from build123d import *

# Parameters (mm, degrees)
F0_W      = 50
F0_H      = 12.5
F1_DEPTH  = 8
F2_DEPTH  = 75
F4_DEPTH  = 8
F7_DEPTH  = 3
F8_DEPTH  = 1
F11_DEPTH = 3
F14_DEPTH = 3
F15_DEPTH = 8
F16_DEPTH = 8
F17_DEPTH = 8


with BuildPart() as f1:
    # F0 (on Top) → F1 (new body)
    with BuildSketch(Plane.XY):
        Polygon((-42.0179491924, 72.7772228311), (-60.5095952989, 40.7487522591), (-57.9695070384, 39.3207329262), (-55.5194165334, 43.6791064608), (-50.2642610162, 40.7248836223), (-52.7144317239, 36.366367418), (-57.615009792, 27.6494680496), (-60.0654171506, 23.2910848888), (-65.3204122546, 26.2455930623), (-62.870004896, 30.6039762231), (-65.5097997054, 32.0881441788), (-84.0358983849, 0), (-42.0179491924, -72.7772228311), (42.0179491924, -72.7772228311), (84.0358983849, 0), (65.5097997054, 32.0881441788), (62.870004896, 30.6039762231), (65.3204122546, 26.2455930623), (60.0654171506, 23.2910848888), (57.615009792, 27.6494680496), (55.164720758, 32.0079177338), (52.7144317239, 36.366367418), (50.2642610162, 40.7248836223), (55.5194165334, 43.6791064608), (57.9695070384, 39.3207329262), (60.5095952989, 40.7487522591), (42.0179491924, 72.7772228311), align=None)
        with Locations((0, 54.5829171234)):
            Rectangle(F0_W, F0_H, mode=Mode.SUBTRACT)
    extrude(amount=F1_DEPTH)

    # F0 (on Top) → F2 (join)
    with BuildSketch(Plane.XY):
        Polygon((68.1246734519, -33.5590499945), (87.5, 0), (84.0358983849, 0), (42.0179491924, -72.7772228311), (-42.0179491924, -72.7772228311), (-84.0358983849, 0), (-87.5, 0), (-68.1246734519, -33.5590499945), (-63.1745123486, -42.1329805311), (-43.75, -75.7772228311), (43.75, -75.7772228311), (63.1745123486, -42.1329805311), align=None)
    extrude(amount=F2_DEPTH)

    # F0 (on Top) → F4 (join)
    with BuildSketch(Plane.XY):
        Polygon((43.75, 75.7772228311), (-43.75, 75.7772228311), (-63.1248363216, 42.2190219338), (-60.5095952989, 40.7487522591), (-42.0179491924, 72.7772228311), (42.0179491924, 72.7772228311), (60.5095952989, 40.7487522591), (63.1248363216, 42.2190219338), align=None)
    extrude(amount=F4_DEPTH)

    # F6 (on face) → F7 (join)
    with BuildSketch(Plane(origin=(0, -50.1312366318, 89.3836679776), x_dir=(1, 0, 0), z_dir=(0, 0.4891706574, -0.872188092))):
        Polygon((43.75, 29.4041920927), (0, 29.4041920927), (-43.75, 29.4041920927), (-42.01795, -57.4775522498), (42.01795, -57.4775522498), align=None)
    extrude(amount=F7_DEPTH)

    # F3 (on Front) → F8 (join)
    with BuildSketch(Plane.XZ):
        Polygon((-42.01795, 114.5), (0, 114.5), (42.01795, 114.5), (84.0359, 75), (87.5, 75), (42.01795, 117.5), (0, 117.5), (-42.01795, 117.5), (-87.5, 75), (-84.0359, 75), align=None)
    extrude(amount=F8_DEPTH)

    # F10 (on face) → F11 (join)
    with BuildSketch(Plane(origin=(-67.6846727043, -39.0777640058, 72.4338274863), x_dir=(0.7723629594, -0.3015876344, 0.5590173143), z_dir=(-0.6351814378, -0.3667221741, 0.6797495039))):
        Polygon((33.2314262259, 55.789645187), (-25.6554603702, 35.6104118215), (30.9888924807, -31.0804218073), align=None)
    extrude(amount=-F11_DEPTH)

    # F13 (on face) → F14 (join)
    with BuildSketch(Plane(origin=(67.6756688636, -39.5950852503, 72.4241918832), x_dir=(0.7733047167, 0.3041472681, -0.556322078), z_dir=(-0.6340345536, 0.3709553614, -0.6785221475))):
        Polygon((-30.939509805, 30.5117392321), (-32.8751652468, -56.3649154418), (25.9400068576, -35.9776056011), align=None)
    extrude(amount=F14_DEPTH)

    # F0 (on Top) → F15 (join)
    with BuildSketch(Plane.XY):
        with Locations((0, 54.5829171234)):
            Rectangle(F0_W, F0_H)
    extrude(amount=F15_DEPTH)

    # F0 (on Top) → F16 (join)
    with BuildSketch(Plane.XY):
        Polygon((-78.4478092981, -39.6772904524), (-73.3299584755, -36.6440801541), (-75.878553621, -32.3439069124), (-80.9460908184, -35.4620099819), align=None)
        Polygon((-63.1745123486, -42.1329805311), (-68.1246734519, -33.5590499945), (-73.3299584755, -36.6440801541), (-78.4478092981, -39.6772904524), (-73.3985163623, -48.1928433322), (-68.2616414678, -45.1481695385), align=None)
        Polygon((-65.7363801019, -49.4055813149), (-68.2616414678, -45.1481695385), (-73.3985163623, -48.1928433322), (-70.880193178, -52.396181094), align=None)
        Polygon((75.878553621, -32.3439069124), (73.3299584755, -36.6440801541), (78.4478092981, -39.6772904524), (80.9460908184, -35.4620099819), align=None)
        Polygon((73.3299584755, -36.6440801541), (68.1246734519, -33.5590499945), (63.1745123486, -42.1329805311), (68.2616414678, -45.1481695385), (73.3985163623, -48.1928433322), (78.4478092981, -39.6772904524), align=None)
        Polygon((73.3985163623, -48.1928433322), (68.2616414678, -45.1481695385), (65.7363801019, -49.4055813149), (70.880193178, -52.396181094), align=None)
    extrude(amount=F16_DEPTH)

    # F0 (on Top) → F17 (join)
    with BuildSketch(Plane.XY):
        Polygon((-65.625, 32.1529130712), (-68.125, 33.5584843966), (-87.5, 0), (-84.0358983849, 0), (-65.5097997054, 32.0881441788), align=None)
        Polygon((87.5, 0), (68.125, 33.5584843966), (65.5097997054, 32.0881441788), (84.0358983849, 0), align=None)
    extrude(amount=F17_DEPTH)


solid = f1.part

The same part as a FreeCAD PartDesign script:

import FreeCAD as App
import Part
import Sketcher
Q = App.Units.Quantity


def add_polygon(sketch, points):
    """Adds a closed chain of lines whose ends are joined by coincident constraints."""
    first, n = sketch.GeometryCount, len(points)
    for a, b in zip(points, points[1:] + points[:1]):
        sketch.addGeometry(Part.LineSegment(App.Vector(*a, 0), App.Vector(*b, 0)), False)
    for i in range(n):
        sketch.addConstraint(Sketcher.Constraint("Coincident", first + i, 2, first + (i + 1) % n, 1))

doc = App.newDocument("Part")
body = doc.addObject("PartDesign::Body", "Body")

sketch1 = body.newObject("Sketcher::SketchObject", "Sketch")
sketch1.AttachmentSupport = (doc.getObject("XY_Plane"), [""])
sketch1.MapMode = "FlatFace"
add_polygon(sketch1, [(-42.017949, 72.777223), (-60.509595, 40.748752), (-57.969507, 39.320733), (-55.519417, 43.679106), (-50.264261, 40.724884), (-52.714432, 36.366367), (-57.61501, 27.649468), (-60.065417, 23.291085), (-65.320412, 26.245593), (-62.870005, 30.603976), (-65.5098, 32.088144), (-84.035898, 0), (-42.017949, -72.777223), (42.017949, -72.777223), (84.035898, 0), (65.5098, 32.088144), (62.870005, 30.603976), (65.320412, 26.245593), (60.065417, 23.291085), (57.61501, 27.649468), (55.164721, 32.007918), (52.714432, 36.366367), (50.264261, 40.724884), (55.519417, 43.679106), (57.969507, 39.320733), (60.509595, 40.748752), (42.017949, 72.777223)])
add_polygon(sketch1, [(25, 48.332917), (-25, 48.332917), (-25, 60.832917), (25, 60.832917)])
sketch1.addConstraint(Sketcher.Constraint("Horizontal", 12))
sketch1.addConstraint(Sketcher.Constraint("Horizontal", 26))
sketch1.addConstraint(Sketcher.Constraint("Horizontal", 27))
sketch1.addConstraint(Sketcher.Constraint("Vertical", 28))
sketch1.addConstraint(Sketcher.Constraint("Horizontal", 29))
sketch1.addConstraint(Sketcher.Constraint("Vertical", 30))
sketch1.addConstraint(Sketcher.Constraint("PointOnObject", 10, 2, -1))
sketch1.addConstraint(Sketcher.Constraint("PointOnObject", 13, 2, -1))
sketch1.addConstraint(Sketcher.Constraint("DistanceX", 27, 2, 27, 1, Q("50 mm")))
sketch1.addConstraint(Sketcher.Constraint("Distance", 4, Q("5 mm")))
sketch1.addConstraint(Sketcher.Constraint("Distance", 5, Q("10 mm")))
sketch1.addConstraint(Sketcher.Constraint("Distance", 6, Q("5 mm")))
sketch1.addConstraint(Sketcher.Constraint("Distance", 8, Q("5 mm")))
sketch1.addConstraint(Sketcher.Constraint("Distance", 16, Q("5 mm")))
sketch1.addConstraint(Sketcher.Constraint("Distance", 18, Q("5 mm")))
sketch1.addConstraint(Sketcher.Constraint("Distance", 19, Q("5 mm")))
sketch1.addConstraint(Sketcher.Constraint("Distance", 20, Q("5 mm")))
sketch1.addConstraint(Sketcher.Constraint("Distance", 21, Q("5 mm")))
sketch1.addConstraint(Sketcher.Constraint("DistanceY", 28, 1, 28, 2, Q("12.5 mm")))
sketch1.addConstraint(Sketcher.Constraint("DistanceX", 27, 2, -1, 1, Q("25 mm")))
sketch1.addConstraint(Sketcher.Constraint("DistanceX", 12, 1, 12, 2, Q("84.035898 mm")))
sketch1.addConstraint(Sketcher.Constraint("DistanceX", 26, 2, 26, 1, Q("84.035898 mm")))
sketch1.addConstraint(Sketcher.Constraint("Distance", 11, Q("84.035898 mm")))
sketch1.addConstraint(Sketcher.Constraint("Distance", 13, Q("84.035898 mm")))
sketch1.addConstraint(Sketcher.Constraint("DistanceX", 9, 2, -1, 1, Q("65.5098 mm")))
sketch1.addConstraint(Sketcher.Constraint("DistanceX", 10, 2, -1, 1, Q("84.035898 mm")))
sketch1.addConstraint(Sketcher.Constraint("DistanceX", -1, 1, 13, 2, Q("84.035898 mm")))
sketch1.addConstraint(Sketcher.Constraint("DistanceX", -1, 1, 14, 2, Q("65.5098 mm")))
sketch1.addConstraint(Sketcher.Constraint("DistanceY", 5, 2, 4, 2, Q("8.716899 mm")))
sketch1.addConstraint(Sketcher.Constraint("DistanceY", 6, 2, 3, 2, Q("17.433799 mm")))
sketch1.addConstraint(Sketcher.Constraint("DistanceY", 11, 2, 8, 2, Q("103.381199 mm")))
sketch1.addConstraint(Sketcher.Constraint("DistanceY", 12, 2, 15, 2, Q("103.381199 mm")))
sketch1.addConstraint(Sketcher.Constraint("DistanceY", 18, 2, 20, 2, Q("8.716899 mm")))
sketch1.addConstraint(Sketcher.Constraint("Distance", 1, Q("2.913981 mm")))
sketch1.addConstraint(Sketcher.Constraint("Distance", 9, Q("3.028411 mm")))
sketch1.addConstraint(Sketcher.Constraint("Distance", 15, Q("3.028411 mm")))
sketch1.addConstraint(Sketcher.Constraint("Distance", 24, Q("2.913981 mm")))
sketch1.addConstraint(Sketcher.Constraint("DistanceX", 3, 2, -1, 1, Q("50.264261 mm")))
sketch1.addConstraint(Sketcher.Constraint("DistanceX", 4, 2, -1, 1, Q("52.714432 mm")))
sketch1.addConstraint(Sketcher.Constraint("DistanceY", -1, 1, 5, 2, Q("27.649468 mm")))
sketch1.addConstraint(Sketcher.Constraint("DistanceX", -1, 1, 18, 2, Q("57.61501 mm")))
sketch1.addConstraint(Sketcher.Constraint("DistanceY", -1, 1, 18, 2, Q("27.649468 mm")))
sketch1.addConstraint(Sketcher.Constraint("DistanceX", -1, 1, 19, 2, Q("55.164721 mm")))
sketch1.addConstraint(Sketcher.Constraint("DistanceX", -1, 1, 21, 2, Q("50.264261 mm")))
sketch1.addConstraint(Sketcher.Constraint("DistanceX", -1, 1, 25, 2, Q("42.017949 mm")))
sketch1.addConstraint(Sketcher.Constraint("DistanceX", 0, 2, 1, 2, Q("2.540088 mm")))
sketch1.addConstraint(Sketcher.Constraint("DistanceX", 1, 2, 2, 2, Q("2.450091 mm")))
sketch1.addConstraint(Sketcher.Constraint("DistanceY", 1, 2, 3, 2, Q("1.404151 mm")))
sketch1.addConstraint(Sketcher.Constraint("DistanceY", 4, 2, 2, 2, Q("7.312739 mm")))
sketch1.addConstraint(Sketcher.Constraint("DistanceX", 6, 2, 1, 2, Q("2.09591 mm")))
sketch1.addConstraint(Sketcher.Constraint("DistanceY", 6, 2, 7, 2, Q("2.954508 mm")))
sketch1.addConstraint(Sketcher.Constraint("DistanceX", 7, 2, 4, 2, Q("12.605981 mm")))
sketch1.addConstraint(Sketcher.Constraint("DistanceY", 14, 2, 3, 2, Q("8.636739 mm")))
sketch1.addConstraint(Sketcher.Constraint("DistanceY", 16, 2, 14, 2, Q("5.842551 mm")))
sketch1.addConstraint(Sketcher.Constraint("DistanceY", 17, 2, 16, 2, Q("2.954508 mm")))
sketch1.addConstraint(Sketcher.Constraint("DistanceY", 20, 2, 22, 2, Q("7.312739 mm")))
sketch1.addConstraint(Sketcher.Constraint("DistanceX", 22, 2, 15, 2, Q("7.350588 mm")))
sketch1.addConstraint(Sketcher.Constraint("DistanceX", 22, 2, 23, 2, Q("2.450091 mm")))
sketch1.addConstraint(Sketcher.Constraint("DistanceY", 23, 2, 21, 2, Q("1.404151 mm")))
sketch1.addConstraint(Sketcher.Constraint("DistanceX", 23, 2, 24, 2, Q("2.540088 mm")))
sketch1.addConstraint(Sketcher.Constraint("DistanceY", 21, 2, 25, 2, Q("32.052339 mm")))
sketch1.addConstraint(Sketcher.Constraint("DistanceY", 4, 2, 27, 2, Q("11.96655 mm")))
pad1 = body.newObject("PartDesign::Pad", "Pad")
pad1.Profile = sketch1
pad1.Length = 8

sketch2 = body.newObject("Sketcher::SketchObject", "Sketch001")
sketch2.AttachmentSupport = (doc.getObject("XY_Plane"), [""])
sketch2.MapMode = "FlatFace"
add_polygon(sketch2, [(68.124673, -33.55905), (87.5, 0), (84.035898, 0), (42.017949, -72.777223), (-42.017949, -72.777223), (-84.035898, 0), (-87.5, 0), (-68.124673, -33.55905), (-63.174512, -42.132981), (-43.75, -75.777223), (43.75, -75.777223), (63.174512, -42.132981)])
sketch2.addConstraint(Sketcher.Constraint("Horizontal", 1))
sketch2.addConstraint(Sketcher.Constraint("Horizontal", 3))
sketch2.addConstraint(Sketcher.Constraint("Horizontal", 5))
sketch2.addConstraint(Sketcher.Constraint("Horizontal", 9))
sketch2.addConstraint(Sketcher.Constraint("Symmetric", 1, 2, 4, 2, -1, 1))
sketch2.addConstraint(Sketcher.Constraint("Symmetric", 0, 2, 5, 2, -2))
sketch2.addConstraint(Sketcher.Constraint("Symmetric", 7, 2, 10, 2, -2))
sketch2.addConstraint(Sketcher.Constraint("Symmetric", 6, 2, 11, 2, -2))
sketch2.addConstraint(Sketcher.Constraint("Parallel", 0, 2))
sketch2.addConstraint(Sketcher.Constraint("Parallel", 4, 6))
sketch2.addConstraint(Sketcher.Constraint("Parallel", 6, 7))
sketch2.addConstraint(Sketcher.Constraint("Parallel", 7, 8))
sketch2.addConstraint(Sketcher.Constraint("Parallel", 2, 10))
sketch2.addConstraint(Sketcher.Constraint("Angle", 0, Q("60 deg")))
sketch2.addConstraint(Sketcher.Constraint("DistanceX", 9, 1, 9, 2, Q("87.5 mm")))
sketch2.addConstraint(Sketcher.Constraint("DistanceX", 5, 2, 0, 2, Q("175 mm")))
sketch2.addConstraint(Sketcher.Constraint("DistanceY", 8, 2, 3, 2, Q("3 mm")))
sketch2.addConstraint(Sketcher.Constraint("DistanceX", 1, 2, 1, 1, Q("3.464102 mm")))
sketch2.addConstraint(Sketcher.Constraint("DistanceY", 6, 2, -1, 1, Q("33.55905 mm")))
sketch2.addConstraint(Sketcher.Constraint("DistanceY", 7, 2, -1, 1, Q("42.132981 mm")))
pad2 = body.newObject("PartDesign::Pad", "Pad001")
pad2.Profile = sketch2
pad2.Length = 75

sketch3 = body.newObject("Sketcher::SketchObject", "Sketch002")
sketch3.AttachmentSupport = (doc.getObject("XY_Plane"), [""])
sketch3.MapMode = "FlatFace"
add_polygon(sketch3, [(43.75, 75.777223), (-43.75, 75.777223), (-63.124836, 42.219022), (-60.509595, 40.748752), (-42.017949, 72.777223), (42.017949, 72.777223), (60.509595, 40.748752), (63.124836, 42.219022)])
sketch3.addConstraint(Sketcher.Constraint("Horizontal", 0))
sketch3.addConstraint(Sketcher.Constraint("Horizontal", 4))
sketch3.addConstraint(Sketcher.Constraint("Symmetric", 2, 2, 5, 2, -2))
sketch3.addConstraint(Sketcher.Constraint("Symmetric", 1, 2, 6, 2, -2))
sketch3.addConstraint(Sketcher.Constraint("Parallel", 1, 3))
sketch3.addConstraint(Sketcher.Constraint("Parallel", 5, 7))
sketch3.addConstraint(Sketcher.Constraint("Equal", 3, 5))
sketch3.addConstraint(Sketcher.Constraint("Angle", 1, Q("-120 deg")))
sketch3.addConstraint(Sketcher.Constraint("DistanceX", 0, 2, 0, 1, Q("87.5 mm")))
sketch3.addConstraint(Sketcher.Constraint("DistanceY", 3, 2, 0, 2, Q("3 mm")))
sketch3.addConstraint(Sketcher.Constraint("DistanceX", 4, 1, 4, 2, Q("84.035898 mm")))
sketch3.addConstraint(Sketcher.Constraint("DistanceY", 1, 2, 0, 2, Q("33.558201 mm")))
sketch3.addConstraint(Sketcher.Constraint("DistanceY", -1, 1, 1, 2, Q("42.219022 mm")))
sketch3.addConstraint(Sketcher.Constraint("DistanceX", 1, 2, 2, 2, Q("2.615241 mm")))
pad3 = body.newObject("PartDesign::Pad", "Pad002")
pad3.Profile = sketch3
pad3.Length = 8

sketch4 = body.newObject("Sketcher::SketchObject", "Sketch003")
sketch4.Placement = App.Placement(App.Vector(0, -50.131237, 89.383668), App.Rotation(App.Vector(1, 0, 0), App.Vector(0, -0.872188092, -0.489170657), App.Vector(0, 0.489170657, -0.872188092), "ZXY"))
add_polygon(sketch4, [(43.75, 29.404192), (-43.75, 29.404192), (-42.01795, -57.477552), (42.01795, -57.477552)])
sketch4.addConstraint(Sketcher.Constraint("Horizontal", 0))
sketch4.addConstraint(Sketcher.Constraint("Horizontal", 2))
sketch4.addConstraint(Sketcher.Constraint("Equal", 1, 3))
sketch4.addConstraint(Sketcher.Constraint("DistanceX", 0, 2, 0, 1, Q("87.5 mm")))
sketch4.addConstraint(Sketcher.Constraint("DistanceX", 0, 2, -1, 1, Q("43.75 mm")))
sketch4.addConstraint(Sketcher.Constraint("DistanceX", 2, 1, 2, 2, Q("84.0359 mm")))
sketch4.addConstraint(Sketcher.Constraint("Distance", 1, Q("86.899007 mm")))
sketch4.addConstraint(Sketcher.Constraint("DistanceY", -1, 1, 0, 2, Q("29.404192 mm")))
pad4 = body.newObject("PartDesign::Pad", "Pad003")
pad4.Profile = sketch4
pad4.Length = 3

sketch5 = body.newObject("Sketcher::SketchObject", "Sketch004")
sketch5.AttachmentSupport = (doc.getObject("XZ_Plane"), [""])
sketch5.MapMode = "FlatFace"
add_polygon(sketch5, [(-42.01795, 114.5), (42.01795, 114.5), (84.0359, 75), (87.5, 75), (42.01795, 117.5), (-42.01795, 117.5), (-87.5, 75), (-84.0359, 75)])
sketch5.addConstraint(Sketcher.Constraint("Horizontal", 0))
sketch5.addConstraint(Sketcher.Constraint("Horizontal", 2))
sketch5.addConstraint(Sketcher.Constraint("Horizontal", 4))
sketch5.addConstraint(Sketcher.Constraint("Horizontal", 6))
sketch5.addConstraint(Sketcher.Constraint("Symmetric", 2, 2, 5, 2, -2))
sketch5.addConstraint(Sketcher.Constraint("Vertical", 0, 2, 3, 2))
sketch5.addConstraint(Sketcher.Constraint("Vertical", 4, 2, 7, 2))
sketch5.addConstraint(Sketcher.Constraint("Equal", 2, 6))
sketch5.addConstraint(Sketcher.Constraint("Equal", 3, 5))
sketch5.addConstraint(Sketcher.Constraint("DistanceY", -1, 1, 1, 2, Q("75 mm")))
sketch5.addConstraint(Sketcher.Constraint("DistanceY", 0, 2, 3, 2, Q("3 mm")))
sketch5.addConstraint(Sketcher.Constraint("DistanceX", 5, 2, 2, 2, Q("175 mm")))
sketch5.addConstraint(Sketcher.Constraint("DistanceY", -1, 1, 0, 2, Q("114.5 mm")))
sketch5.addConstraint(Sketcher.Constraint("DistanceX", 0, 1, 0, 2, Q("84.0359 mm")))
sketch5.addConstraint(Sketcher.Constraint("DistanceX", 2, 1, 2, 2, Q("3.4641 mm")))
pad5 = body.newObject("PartDesign::Pad", "Pad004")
pad5.Profile = sketch5
pad5.Length = 1

sketch6 = body.newObject("Sketcher::SketchObject", "Sketch005")
sketch6.Placement = App.Placement(App.Vector(-67.684673, -39.077764, 72.433827), App.Rotation(App.Vector(0.772362959, -0.301587634, 0.559017314), App.Vector(0, 0.88009076, 0.47480549), App.Vector(-0.635181438, -0.366722174, 0.679749504), "ZXY"))
add_polygon(sketch6, [(33.231426, 55.789645), (-25.65546, 35.610412), (30.988892, -31.080422)])
sketch6.addConstraint(Sketcher.Constraint("Distance", 1, Q("87.5 mm")))
sketch6.addConstraint(Sketcher.Constraint("Distance", 0, Q("62.248429 mm")))
sketch6.addConstraint(Sketcher.Constraint("DistanceX", 0, 2, -1, 1, Q("25.65546 mm")))
sketch6.addConstraint(Sketcher.Constraint("DistanceY", -1, 1, 0, 2, Q("35.610412 mm")))
sketch6.addConstraint(Sketcher.Constraint("DistanceY", 1, 2, -1, 1, Q("31.080422 mm")))
sketch6.addConstraint(Sketcher.Constraint("Distance", 2, Q("86.899007 mm")))
pad6 = body.newObject("PartDesign::Pad", "Pad005")
pad6.Profile = sketch6
pad6.Length = 3
pad6.Reversed = True

sketch7 = body.newObject("Sketcher::SketchObject", "Sketch006")
sketch7.Placement = App.Placement(App.Vector(67.675669, -39.595085, 72.424192), App.Rotation(App.Vector(0.773304717, 0.304147268, -0.556322078), App.Vector(0, -0.877431798, -0.479701408), App.Vector(-0.634034554, 0.370955361, -0.678522148), "ZXY"))
add_polygon(sketch7, [(-30.93951, 30.511739), (-32.875165, -56.364916), (25.940007, -35.977606)])
sketch7.addConstraint(Sketcher.Constraint("Distance", 1, Q("62.248429 mm")))
sketch7.addConstraint(Sketcher.Constraint("DistanceX", 2, 2, -1, 1, Q("30.93951 mm")))
sketch7.addConstraint(Sketcher.Constraint("DistanceY", -1, 1, 2, 2, Q("30.511739 mm")))
sketch7.addConstraint(Sketcher.Constraint("DistanceY", 0, 2, 1, 2, Q("20.38731 mm")))
sketch7.addConstraint(Sketcher.Constraint("Distance", 0, Q("86.898216 mm")))
sketch7.addConstraint(Sketcher.Constraint("Distance", 2, Q("87.499214 mm")))
pad7 = body.newObject("PartDesign::Pad", "Pad006")
pad7.Profile = sketch7
pad7.Length = 3

sketch8 = body.newObject("Sketcher::SketchObject", "Sketch007")
sketch8.AttachmentSupport = (doc.getObject("XY_Plane"), [""])
sketch8.MapMode = "FlatFace"
add_polygon(sketch8, [(-25, 60.832917), (-25, 48.332917), (25, 48.332917), (25, 60.832917)])
sketch8.addConstraint(Sketcher.Constraint("Vertical", 0))
sketch8.addConstraint(Sketcher.Constraint("Horizontal", 1))
sketch8.addConstraint(Sketcher.Constraint("Vertical", 2))
sketch8.addConstraint(Sketcher.Constraint("Horizontal", 3))
sketch8.addConstraint(Sketcher.Constraint("DistanceX", 1, 1, 1, 2, Q("50 mm")))
sketch8.addConstraint(Sketcher.Constraint("DistanceY", 0, 2, 0, 1, Q("12.5 mm")))
sketch8.addConstraint(Sketcher.Constraint("DistanceX", 0, 2, -1, 1, Q("25 mm")))
sketch8.addConstraint(Sketcher.Constraint("DistanceY", -1, 1, 0, 2, Q("48.332917 mm")))
pad8 = body.newObject("PartDesign::Pad", "Pad007")
pad8.Profile = sketch8
pad8.Length = 8

sketch9 = body.newObject("Sketcher::SketchObject", "Sketch008")
sketch9.AttachmentSupport = (doc.getObject("XY_Plane"), [""])
sketch9.MapMode = "FlatFace"
add_polygon(sketch9, [(-73.329958, -36.64408), (-75.878554, -32.343907), (-80.946091, -35.46201), (-78.447809, -39.67729), (-73.398516, -48.192843), (-70.880193, -52.396181), (-65.73638, -49.405581), (-68.261641, -45.14817), (-63.174512, -42.132981), (-68.124673, -33.55905)])
add_polygon(sketch9, [(75.878554, -32.343907), (73.329958, -36.64408), (68.124673, -33.55905), (63.174512, -42.132981), (68.261641, -45.14817), (65.73638, -49.405581), (70.880193, -52.396181), (73.398516, -48.192843), (78.447809, -39.67729), (80.946091, -35.46201)])
sketch9.addConstraint(Sketcher.Constraint("Symmetric", 9, 2, 10, 2, -2))
sketch9.addConstraint(Sketcher.Constraint("Symmetric", 8, 2, 11, 2, -2))
sketch9.addConstraint(Sketcher.Constraint("Symmetric", 7, 2, 12, 2, -2))
sketch9.addConstraint(Sketcher.Constraint("Symmetric", 6, 2, 13, 2, -2))
sketch9.addConstraint(Sketcher.Constraint("Symmetric", 5, 2, 14, 2, -2))
sketch9.addConstraint(Sketcher.Constraint("Symmetric", 4, 2, 15, 2, -2))
sketch9.addConstraint(Sketcher.Constraint("Symmetric", 3, 2, 16, 2, -2))
sketch9.addConstraint(Sketcher.Constraint("Symmetric", 2, 2, 17, 2, -2))
sketch9.addConstraint(Sketcher.Constraint("Symmetric", 1, 2, 18, 2, -2))
sketch9.addConstraint(Sketcher.Constraint("Symmetric", 0, 2, 19, 2, -2))
sketch9.addConstraint(Sketcher.Constraint("Parallel", 0, 2))
sketch9.addConstraint(Sketcher.Constraint("Perpendicular", 2, 9))
sketch9.addConstraint(Sketcher.Constraint("Equal", 2, 4))
sketch9.addConstraint(Sketcher.Constraint("Equal", 1, 5))
sketch9.addConstraint(Sketcher.Constraint("Angle", 8, Q("120 deg")))
sketch9.addConstraint(Sketcher.Constraint("Distance", 2, Q("4.9 mm")))
sketch9.addConstraint(Sketcher.Constraint("Distance", 3, Q("9.9 mm")))
sketch9.addConstraint(Sketcher.Constraint("Distance", 1, Q("5.95 mm")))
sketch9.addConstraint(Sketcher.Constraint("Distance", 6, Q("4.95 mm")))
sketch9.addConstraint(Sketcher.Constraint("DistanceY", 4, 2, 5, 2, Q("2.9906 mm")))
sketch9.addConstraint(Sketcher.Constraint("DistanceY", 5, 2, 7, 2, Q("7.272601 mm")))
sketch9.addConstraint(Sketcher.Constraint("DistanceY", 7, 2, 10, 2, Q("5.4889 mm")))
sketch9.addConstraint(Sketcher.Constraint("DistanceX", 6, 2, 10, 2, Q("141.5916 mm")))
sketch9.addConstraint(Sketcher.Constraint("Distance", 9, Q("6.050818 mm")))
sketch9.addConstraint(Sketcher.Constraint("DistanceX", 1, 2, -1, 1, Q("80.946091 mm")))
sketch9.addConstraint(Sketcher.Constraint("DistanceY", 1, 2, -1, 1, Q("35.46201 mm")))
sketch9.addConstraint(Sketcher.Constraint("DistanceX", 2, 2, -1, 1, Q("78.447809 mm")))
sketch9.addConstraint(Sketcher.Constraint("DistanceY", 4, 2, -1, 1, Q("52.396181 mm")))
sketch9.addConstraint(Sketcher.Constraint("DistanceX", 5, 2, -1, 1, Q("65.73638 mm")))
sketch9.addConstraint(Sketcher.Constraint("DistanceX", 6, 2, -1, 1, Q("68.261641 mm")))
pad9 = body.newObject("PartDesign::Pad", "Pad008")
pad9.Profile = sketch9
pad9.Length = 8

sketch10 = body.newObject("Sketcher::SketchObject", "Sketch009")
sketch10.AttachmentSupport = (doc.getObject("XY_Plane"), [""])
sketch10.MapMode = "FlatFace"
add_polygon(sketch10, [(-65.625, 32.152913), (-68.125, 33.558484), (-87.5, 0), (-84.035898, 0), (-65.5098, 32.088144)])
add_polygon(sketch10, [(87.5, 0), (68.125, 33.558484), (65.5098, 32.088144), (84.035898, 0)])
sketch10.addConstraint(Sketcher.Constraint("Horizontal", 2))
sketch10.addConstraint(Sketcher.Constraint("Horizontal", 8))
sketch10.addConstraint(Sketcher.Constraint("Symmetric", 2, 2, 7, 2, -1, 1))
sketch10.addConstraint(Sketcher.Constraint("Symmetric", 0, 2, 5, 2, -2))
sketch10.addConstraint(Sketcher.Constraint("Symmetric", 3, 2, 6, 2, -2))
sketch10.addConstraint(Sketcher.Constraint("Symmetric", 1, 2, 8, 2, -2))
sketch10.addConstraint(Sketcher.Constraint("Parallel", 1, 3))
sketch10.addConstraint(Sketcher.Constraint("Parallel", 0, 4))
sketch10.addConstraint(Sketcher.Constraint("Angle", 1, Q("-120 deg")))
sketch10.addConstraint(Sketcher.Constraint("DistanceX", 1, 2, -1, 1, Q("87.5 mm")))
sketch10.addConstraint(Sketcher.Constraint("DistanceX", 0, 2, 4, 2, Q("2.5 mm")))
sketch10.addConstraint(Sketcher.Constraint("Distance", 1, Q("38.75 mm")))
sketch10.addConstraint(Sketcher.Constraint("DistanceX", 2, 1, 2, 2, Q("3.464102 mm")))
sketch10.addConstraint(Sketcher.Constraint("DistanceX", 3, 2, -1, 1, Q("65.5098 mm")))
pad10 = body.newObject("PartDesign::Pad", "Pad009")
pad10.Profile = sketch10
pad10.Length = 8

doc.recompute()
